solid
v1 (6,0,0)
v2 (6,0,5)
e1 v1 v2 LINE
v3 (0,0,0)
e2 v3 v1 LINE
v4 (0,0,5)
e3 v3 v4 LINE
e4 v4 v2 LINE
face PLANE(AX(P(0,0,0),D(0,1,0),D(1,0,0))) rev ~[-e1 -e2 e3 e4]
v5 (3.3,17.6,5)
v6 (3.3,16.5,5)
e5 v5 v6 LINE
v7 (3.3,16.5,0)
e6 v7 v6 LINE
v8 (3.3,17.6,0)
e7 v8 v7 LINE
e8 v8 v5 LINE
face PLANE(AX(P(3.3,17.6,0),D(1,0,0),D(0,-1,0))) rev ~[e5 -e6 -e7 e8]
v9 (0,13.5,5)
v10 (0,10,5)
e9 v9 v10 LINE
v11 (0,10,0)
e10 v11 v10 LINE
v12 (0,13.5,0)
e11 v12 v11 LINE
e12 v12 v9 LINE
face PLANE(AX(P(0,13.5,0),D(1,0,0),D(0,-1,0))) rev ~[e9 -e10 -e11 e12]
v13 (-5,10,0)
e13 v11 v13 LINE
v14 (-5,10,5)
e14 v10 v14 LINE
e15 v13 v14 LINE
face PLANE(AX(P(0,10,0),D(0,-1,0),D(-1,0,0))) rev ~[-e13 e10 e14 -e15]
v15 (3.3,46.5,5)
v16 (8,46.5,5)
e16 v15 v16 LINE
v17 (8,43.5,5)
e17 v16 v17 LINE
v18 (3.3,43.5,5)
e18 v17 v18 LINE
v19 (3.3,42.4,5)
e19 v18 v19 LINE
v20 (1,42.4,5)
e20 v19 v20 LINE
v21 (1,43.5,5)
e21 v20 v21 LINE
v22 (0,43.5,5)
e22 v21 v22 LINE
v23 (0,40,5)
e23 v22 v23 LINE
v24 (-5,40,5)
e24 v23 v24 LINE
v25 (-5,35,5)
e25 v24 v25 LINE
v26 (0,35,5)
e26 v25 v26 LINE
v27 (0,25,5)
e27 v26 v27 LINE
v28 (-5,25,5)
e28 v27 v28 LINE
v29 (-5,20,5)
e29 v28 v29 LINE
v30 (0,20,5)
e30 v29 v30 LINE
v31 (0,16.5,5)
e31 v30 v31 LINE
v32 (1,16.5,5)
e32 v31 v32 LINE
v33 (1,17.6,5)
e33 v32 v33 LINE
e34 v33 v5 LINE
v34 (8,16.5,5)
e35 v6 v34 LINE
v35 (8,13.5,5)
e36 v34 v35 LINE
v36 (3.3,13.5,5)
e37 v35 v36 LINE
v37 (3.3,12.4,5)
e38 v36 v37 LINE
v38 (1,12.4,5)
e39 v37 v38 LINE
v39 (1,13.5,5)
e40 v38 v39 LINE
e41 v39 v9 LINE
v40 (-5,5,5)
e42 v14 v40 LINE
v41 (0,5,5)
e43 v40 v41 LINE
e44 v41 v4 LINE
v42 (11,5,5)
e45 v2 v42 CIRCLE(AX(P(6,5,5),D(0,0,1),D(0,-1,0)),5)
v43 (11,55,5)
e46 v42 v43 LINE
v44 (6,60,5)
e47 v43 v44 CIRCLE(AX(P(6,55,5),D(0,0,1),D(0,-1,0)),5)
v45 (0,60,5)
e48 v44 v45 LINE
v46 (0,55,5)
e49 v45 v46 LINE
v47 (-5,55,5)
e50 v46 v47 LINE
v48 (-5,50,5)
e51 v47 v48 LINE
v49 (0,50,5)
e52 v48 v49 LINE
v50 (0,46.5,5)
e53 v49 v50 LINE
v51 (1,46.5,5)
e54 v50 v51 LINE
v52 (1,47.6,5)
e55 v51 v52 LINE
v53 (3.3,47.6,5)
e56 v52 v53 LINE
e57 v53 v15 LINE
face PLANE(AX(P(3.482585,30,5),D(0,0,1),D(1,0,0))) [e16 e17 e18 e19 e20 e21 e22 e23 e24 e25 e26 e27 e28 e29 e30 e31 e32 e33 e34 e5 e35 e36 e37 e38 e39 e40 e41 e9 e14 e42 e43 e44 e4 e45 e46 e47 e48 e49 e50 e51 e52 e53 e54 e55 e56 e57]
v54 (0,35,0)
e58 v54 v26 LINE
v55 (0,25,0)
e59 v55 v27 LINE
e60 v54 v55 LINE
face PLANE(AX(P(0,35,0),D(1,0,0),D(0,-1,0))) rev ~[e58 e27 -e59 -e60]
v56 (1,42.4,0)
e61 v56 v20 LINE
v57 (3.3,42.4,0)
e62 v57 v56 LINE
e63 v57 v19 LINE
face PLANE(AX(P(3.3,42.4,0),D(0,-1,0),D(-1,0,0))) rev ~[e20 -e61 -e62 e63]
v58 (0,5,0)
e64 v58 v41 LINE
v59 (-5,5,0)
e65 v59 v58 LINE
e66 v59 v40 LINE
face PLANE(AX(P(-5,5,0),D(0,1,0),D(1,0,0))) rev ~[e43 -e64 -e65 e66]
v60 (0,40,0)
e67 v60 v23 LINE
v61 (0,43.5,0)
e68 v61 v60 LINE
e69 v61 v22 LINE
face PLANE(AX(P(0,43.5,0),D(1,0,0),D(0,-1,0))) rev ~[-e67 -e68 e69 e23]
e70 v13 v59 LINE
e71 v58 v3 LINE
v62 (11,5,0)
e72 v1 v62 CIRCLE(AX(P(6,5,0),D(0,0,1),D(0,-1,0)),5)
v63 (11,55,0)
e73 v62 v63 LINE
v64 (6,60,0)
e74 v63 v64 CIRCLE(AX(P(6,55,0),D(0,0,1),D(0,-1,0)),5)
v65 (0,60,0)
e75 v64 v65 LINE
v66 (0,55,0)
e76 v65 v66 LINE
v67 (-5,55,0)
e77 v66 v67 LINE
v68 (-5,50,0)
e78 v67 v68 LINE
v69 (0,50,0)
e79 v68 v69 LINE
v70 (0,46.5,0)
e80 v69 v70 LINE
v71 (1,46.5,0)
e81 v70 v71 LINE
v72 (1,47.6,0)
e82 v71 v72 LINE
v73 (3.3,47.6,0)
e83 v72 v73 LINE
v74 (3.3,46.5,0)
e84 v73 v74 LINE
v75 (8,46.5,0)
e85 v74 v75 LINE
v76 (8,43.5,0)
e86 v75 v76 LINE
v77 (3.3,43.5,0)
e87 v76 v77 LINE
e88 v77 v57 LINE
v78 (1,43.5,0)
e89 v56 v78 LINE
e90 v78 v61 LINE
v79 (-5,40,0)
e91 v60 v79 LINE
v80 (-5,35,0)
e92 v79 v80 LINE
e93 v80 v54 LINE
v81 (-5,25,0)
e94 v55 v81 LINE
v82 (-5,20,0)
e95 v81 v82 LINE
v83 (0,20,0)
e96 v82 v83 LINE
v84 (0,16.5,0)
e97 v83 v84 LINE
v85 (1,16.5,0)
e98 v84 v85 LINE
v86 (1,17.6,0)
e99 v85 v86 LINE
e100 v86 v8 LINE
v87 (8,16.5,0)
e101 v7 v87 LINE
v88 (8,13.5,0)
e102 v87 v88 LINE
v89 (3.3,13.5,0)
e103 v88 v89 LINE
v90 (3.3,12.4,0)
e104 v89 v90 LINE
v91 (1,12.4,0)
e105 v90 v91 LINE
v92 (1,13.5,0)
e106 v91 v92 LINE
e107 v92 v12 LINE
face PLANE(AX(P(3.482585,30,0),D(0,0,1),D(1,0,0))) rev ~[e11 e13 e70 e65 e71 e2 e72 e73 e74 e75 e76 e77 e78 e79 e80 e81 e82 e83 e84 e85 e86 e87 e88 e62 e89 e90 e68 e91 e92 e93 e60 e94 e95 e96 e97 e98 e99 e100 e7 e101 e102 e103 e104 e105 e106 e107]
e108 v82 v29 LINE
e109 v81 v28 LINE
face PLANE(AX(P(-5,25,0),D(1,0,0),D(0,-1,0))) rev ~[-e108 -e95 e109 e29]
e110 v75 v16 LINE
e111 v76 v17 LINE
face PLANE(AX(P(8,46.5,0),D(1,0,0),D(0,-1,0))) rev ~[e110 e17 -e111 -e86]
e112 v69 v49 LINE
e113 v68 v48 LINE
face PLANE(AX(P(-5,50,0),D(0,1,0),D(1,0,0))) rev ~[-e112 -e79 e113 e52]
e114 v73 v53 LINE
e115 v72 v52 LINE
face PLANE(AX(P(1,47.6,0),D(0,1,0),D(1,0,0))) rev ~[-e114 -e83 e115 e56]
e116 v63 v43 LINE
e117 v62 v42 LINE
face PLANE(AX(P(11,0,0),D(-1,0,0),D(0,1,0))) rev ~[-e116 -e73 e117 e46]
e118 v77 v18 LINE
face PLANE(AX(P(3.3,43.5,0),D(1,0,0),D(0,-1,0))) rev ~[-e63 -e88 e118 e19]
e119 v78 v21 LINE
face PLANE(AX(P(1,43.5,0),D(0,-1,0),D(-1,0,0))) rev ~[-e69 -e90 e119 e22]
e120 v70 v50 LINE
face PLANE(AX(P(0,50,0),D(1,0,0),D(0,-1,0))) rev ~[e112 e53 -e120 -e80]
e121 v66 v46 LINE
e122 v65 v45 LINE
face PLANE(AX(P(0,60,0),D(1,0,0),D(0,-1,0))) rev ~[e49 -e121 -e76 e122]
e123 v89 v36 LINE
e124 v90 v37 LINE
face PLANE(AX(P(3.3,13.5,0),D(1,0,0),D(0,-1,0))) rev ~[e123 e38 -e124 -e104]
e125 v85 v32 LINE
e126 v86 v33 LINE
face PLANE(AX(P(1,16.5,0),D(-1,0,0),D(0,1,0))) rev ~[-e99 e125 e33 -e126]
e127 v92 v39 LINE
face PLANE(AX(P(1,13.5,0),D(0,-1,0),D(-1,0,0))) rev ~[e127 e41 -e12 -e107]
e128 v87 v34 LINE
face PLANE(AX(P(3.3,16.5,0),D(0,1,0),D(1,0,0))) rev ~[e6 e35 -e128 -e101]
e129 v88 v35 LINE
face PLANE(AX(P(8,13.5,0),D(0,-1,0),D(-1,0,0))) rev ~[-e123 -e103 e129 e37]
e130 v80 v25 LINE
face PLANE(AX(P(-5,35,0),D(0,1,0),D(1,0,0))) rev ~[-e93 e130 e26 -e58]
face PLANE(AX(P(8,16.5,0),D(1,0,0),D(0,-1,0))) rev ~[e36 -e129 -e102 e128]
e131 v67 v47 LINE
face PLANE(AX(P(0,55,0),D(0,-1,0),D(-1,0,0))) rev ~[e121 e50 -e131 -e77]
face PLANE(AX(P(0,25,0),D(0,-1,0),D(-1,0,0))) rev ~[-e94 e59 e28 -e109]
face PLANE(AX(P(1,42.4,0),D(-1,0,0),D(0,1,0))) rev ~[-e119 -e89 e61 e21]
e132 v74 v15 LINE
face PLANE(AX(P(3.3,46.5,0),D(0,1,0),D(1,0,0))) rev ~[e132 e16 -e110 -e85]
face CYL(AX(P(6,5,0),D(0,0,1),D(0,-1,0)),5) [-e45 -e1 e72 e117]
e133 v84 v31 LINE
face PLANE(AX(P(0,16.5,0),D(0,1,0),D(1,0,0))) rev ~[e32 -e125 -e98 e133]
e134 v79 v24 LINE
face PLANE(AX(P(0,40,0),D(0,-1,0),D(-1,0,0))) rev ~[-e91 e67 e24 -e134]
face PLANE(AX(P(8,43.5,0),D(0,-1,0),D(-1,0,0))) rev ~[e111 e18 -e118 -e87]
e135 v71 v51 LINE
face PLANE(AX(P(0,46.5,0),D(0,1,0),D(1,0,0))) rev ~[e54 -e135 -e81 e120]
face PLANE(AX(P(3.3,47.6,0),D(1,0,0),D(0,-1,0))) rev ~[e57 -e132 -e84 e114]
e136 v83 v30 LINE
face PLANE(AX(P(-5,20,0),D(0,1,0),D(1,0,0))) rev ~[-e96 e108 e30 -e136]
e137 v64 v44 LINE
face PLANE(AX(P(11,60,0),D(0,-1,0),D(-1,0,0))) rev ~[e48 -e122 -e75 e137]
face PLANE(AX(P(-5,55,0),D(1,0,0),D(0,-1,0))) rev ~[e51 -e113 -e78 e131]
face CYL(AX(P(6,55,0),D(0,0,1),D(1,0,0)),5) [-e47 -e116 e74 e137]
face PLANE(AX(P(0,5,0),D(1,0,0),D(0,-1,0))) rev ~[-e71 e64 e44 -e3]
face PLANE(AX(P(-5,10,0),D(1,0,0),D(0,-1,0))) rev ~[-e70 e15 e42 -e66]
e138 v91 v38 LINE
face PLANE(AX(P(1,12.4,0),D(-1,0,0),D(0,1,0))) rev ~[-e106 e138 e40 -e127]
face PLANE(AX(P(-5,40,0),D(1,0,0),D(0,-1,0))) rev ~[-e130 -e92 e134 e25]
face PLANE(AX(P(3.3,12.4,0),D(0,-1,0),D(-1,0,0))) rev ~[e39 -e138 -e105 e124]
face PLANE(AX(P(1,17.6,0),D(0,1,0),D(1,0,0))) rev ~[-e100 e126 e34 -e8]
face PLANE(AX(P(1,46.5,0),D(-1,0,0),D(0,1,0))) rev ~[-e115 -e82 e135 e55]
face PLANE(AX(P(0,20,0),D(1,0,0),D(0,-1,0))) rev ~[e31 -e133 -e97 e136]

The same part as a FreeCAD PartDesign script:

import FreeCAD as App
import Part
import Sketcher

V = App.Vector


def edges_at(feature, points):
    """Names of the edges that pass closest to the given points."""
    edges = feature.Shape.Edges
    near = lambda p: min(range(len(edges)), key=lambda i: edges[i].distToShape(Part.Vertex(*p))[0])
    return sorted({f"Edge{near(p) + 1}" for p in points})

doc = App.newDocument("Part")
body = doc.addObject("PartDesign::Body", "Body")

sketch1 = body.newObject("Sketcher::SketchObject", "Sketch")
sketch1.AttachmentSupport = (doc.getObject("XY_Plane"), [""])
sketch1.MapMode = "FlatFace"
sketch1.addGeometry([
    Part.LineSegment(V(0, 60, 0), V(0, 55, 0)),
    Part.LineSegment(V(0, 55, 0), V(-5, 55, 0)),
    Part.LineSegment(V(-5, 55, 0), V(-5, 50, 0)),
    Part.LineSegment(V(-5, 50, 0), V(0, 50, 0)),
    Part.LineSegment(V(0, 50, 0), V(0, 46.5, 0)),
    Part.LineSegment(V(0, 46.5, 0), V(1, 46.5, 0)),
    Part.LineSegment(V(1, 46.5, 0), V(1, 47.6, 0)),
    Part.LineSegment(V(1, 47.6, 0), V(3.3, 47.6, 0)),
    Part.LineSegment(V(3.3, 47.6, 0), V(3.3, 46.5, 0)),
    Part.LineSegment(V(3.3, 46.5, 0), V(8, 46.5, 0)),
    Part.LineSegment(V(8, 46.5, 0), V(8, 43.5, 0)),
    Part.LineSegment(V(8, 43.5, 0), V(3.3, 43.5, 0)),
    Part.LineSegment(V(3.3, 43.5, 0), V(3.3, 42.4, 0)),
    Part.LineSegment(V(3.3, 42.4, 0), V(1, 42.4, 0)),
    Part.LineSegment(V(1, 42.4, 0), V(1, 43.5, 0)),
    Part.LineSegment(V(1, 43.5, 0), V(0, 43.5, 0)),
    Part.LineSegment(V(0, 43.5, 0), V(0, 40, 0)),
    Part.LineSegment(V(0, 40, 0), V(-5, 40, 0)),
    Part.LineSegment(V(-5, 40, 0), V(-5, 35, 0)),
    Part.LineSegment(V(-5, 35, 0), V(0, 35, 0)),
    Part.LineSegment(V(0, 35, 0), V(0, 25, 0)),
    Part.LineSegment(V(0, 25, 0), V(-5, 25, 0)),
    Part.LineSegment(V(-5, 25, 0), V(-5, 20, 0)),
    Part.LineSegment(V(-5, 20, 0), V(0, 20, 0)),
    Part.LineSegment(V(0, 20, 0), V(0, 16.5, 0)),
    Part.LineSegment(V(0, 16.5, 0), V(1, 16.5, 0)),
    Part.LineSegment(V(1, 16.5, 0), V(1, 17.6, 0)),
    Part.LineSegment(V(1, 17.6, 0), V(3.3, 17.6, 0)),
    Part.LineSegment(V(3.3, 17.6, 0), V(3.3, 16.5, 0)),
    Part.LineSegment(V(3.3, 16.5, 0), V(8, 16.5, 0)),
    Part.LineSegment(V(8, 16.5, 0), V(8, 13.5, 0)),
    Part.LineSegment(V(8, 13.5, 0), V(3.3, 13.5, 0)),
    Part.LineSegment(V(3.3, 13.5, 0), V(3.3, 12.4, 0)),
    Part.LineSegment(V(3.3, 12.4, 0), V(1, 12.4, 0)),
    Part.LineSegment(V(1, 12.4, 0), V(1, 13.5, 0)),
    Part.LineSegment(V(1, 13.5, 0), V(0, 13.5, 0)),
    Part.LineSegment(V(0, 13.5, 0), V(0, 10, 0)),
    Part.LineSegment(V(0, 10, 0), V(-5, 10, 0)),
    Part.LineSegment(V(-5, 10, 0), V(-5, 5, 0)),
    Part.LineSegment(V(-5, 5, 0), V(0, 5, 0)),
    Part.LineSegment(V(0, 5, 0), V(0, 0, 0)),
    Part.LineSegment(V(0, 0, 0), V(11, 0, 0)),
    Part.LineSegment(V(11, 0, 0), V(11, 60, 0)),
    Part.LineSegment(V(11, 60, 0), V(0, 60, 0)),
], False)
sketch1.addConstraint([
    Sketcher.Constraint("Coincident", 0, 2, 1, 1),
    Sketcher.Constraint("Coincident", 1, 2, 2, 1),
    Sketcher.Constraint("Coincident", 2, 2, 3, 1),
    Sketcher.Constraint("Coincident", 3, 2, 4, 1),
    Sketcher.Constraint("Coincident", 4, 2, 5, 1),
    Sketcher.Constraint("Coincident", 5, 2, 6, 1),
    Sketcher.Constraint("Coincident", 6, 2, 7, 1),
    Sketcher.Constraint("Coincident", 7, 2, 8, 1),
    Sketcher.Constraint("Coincident", 8, 2, 9, 1),
    Sketcher.Constraint("Coincident", 9, 2, 10, 1),
    Sketcher.Constraint("Coincident", 10, 2, 11, 1),
    Sketcher.Constraint("Coincident", 11, 2, 12, 1),
    Sketcher.Constraint("Coincident", 12, 2, 13, 1),
    Sketcher.Constraint("Coincident", 13, 2, 14, 1),
    Sketcher.Constraint("Coincident", 14, 2, 15, 1),
    Sketcher.Constraint("Coincident", 15, 2, 16, 1),
    Sketcher.Constraint("Coincident", 16, 2, 17, 1),
    Sketcher.Constraint("Coincident", 17, 2, 18, 1),
    Sketcher.Constraint("Coincident", 18, 2, 19, 1),
    Sketcher.Constraint("Coincident", 19, 2, 20, 1),
    Sketcher.Constraint("Coincident", 20, 2, 21, 1),
    Sketcher.Constraint("Coincident", 21, 2, 22, 1),
    Sketcher.Constraint("Coincident", 22, 2, 23, 1),
    Sketcher.Constraint("Coincident", 23, 2, 24, 1),
    Sketcher.Constraint("Coincident", 24, 2, 25, 1),
    Sketcher.Constraint("Coincident", 25, 2, 26, 1),
    Sketcher.Constraint("Coincident", 26, 2, 27, 1),
    Sketcher.Constraint("Coincident", 27, 2, 28, 1),
    Sketcher.Constraint("Coincident", 28, 2, 29, 1),
    Sketcher.Constraint("Coincident", 29, 2, 30, 1),
    Sketcher.Constraint("Coincident", 30, 2, 31, 1),
    Sketcher.Constraint("Coincident", 31, 2, 32, 1),
    Sketcher.Constraint("Coincident", 32, 2, 33, 1),
    Sketcher.Constraint("Coincident", 33, 2, 34, 1),
    Sketcher.Constraint("Coincident", 34, 2, 35, 1),
    Sketcher.Constraint("Coincident", 35, 2, 36, 1),
    Sketcher.Constraint("Coincident", 36, 2, 37, 1),
    Sketcher.Constraint("Coincident", 37, 2, 38, 1),
    Sketcher.Constraint("Coincident", 38, 2, 39, 1),
    Sketcher.Constraint("Coincident", 39, 2, 40, 1),
    Sketcher.Constraint("Coincident", 40, 2, 41, 1),
    Sketcher.Constraint("Coincident", 41, 2, 42, 1),
    Sketcher.Constraint("Coincident", 42, 2, 43, 1),
    Sketcher.Constraint("Coincident", 43, 2, 0, 1),
    Sketcher.Constraint("Vertical", 0),
    Sketcher.Constraint("Horizontal", 1),
    Sketcher.Constraint("Vertical", 2),
    Sketcher.Constraint("Horizontal", 3),
    Sketcher.Constraint("Vertical", 4),
    Sketcher.Constraint("Horizontal", 5),
    Sketcher.Constraint("Vertical", 6),
    Sketcher.Constraint("Horizontal", 7),
    Sketcher.Constraint("Vertical", 8),
    Sketcher.Constraint("Horizontal", 9),
    Sketcher.Constraint("Vertical", 10),
    Sketcher.Constraint("Horizontal", 11),
    Sketcher.Constraint("Vertical", 12),
    Sketcher.Constraint("Horizontal", 13),
    Sketcher.Constraint("Vertical", 14),
    Sketcher.Constraint("Horizontal", 15),
    Sketcher.Constraint("Vertical", 16),
    Sketcher.Constraint("Horizontal", 17),
    Sketcher.Constraint("Vertical", 18),
    Sketcher.Constraint("Horizontal", 19),
    Sketcher.Constraint("Vertical", 20),
    Sketcher.Constraint("Horizontal", 21),
    Sketcher.Constraint("Vertical", 22),
    Sketcher.Constraint("Horizontal", 23),
    Sketcher.Constraint("Vertical", 24),
    Sketcher.Constraint("Horizontal", 25),
    Sketcher.Constraint("Vertical", 26),
    Sketcher.Constraint("Horizontal", 27),
    Sketcher.Constraint("Vertical", 28),
    Sketcher.Constraint("Horizontal", 29),
    Sketcher.Constraint("Vertical", 30),
    Sketcher.Constraint("Horizontal", 31),
    Sketcher.Constraint("Vertical", 32),
    Sketcher.Constraint("Horizontal", 33),
    Sketcher.Constraint("Vertical", 34),
    Sketcher.Constraint("Horizontal", 35),
    Sketcher.Constraint("Vertical", 36),
    Sketcher.Constraint("Horizontal", 37),
    Sketcher.Constraint("Vertical", 38),
    Sketcher.Constraint("Horizontal", 39),
    Sketcher.Constraint("Vertical", 40),
    Sketcher.Constraint("Horizontal", 41),
    Sketcher.Constraint("Vertical", 42),
    Sketcher.Constraint("Horizontal", 43),
    Sketcher.Constraint("Coincident", 40, 2, -1, 1),
    Sketcher.Constraint("PointOnObject", 0, 2, -2),
    Sketcher.Constraint("PointOnObject", 3, 2, -2),
    Sketcher.Constraint("PointOnObject", 15, 2, -2),
    Sketcher.Constraint("PointOnObject", 19, 2, -2),
    Sketcher.Constraint("PointOnObject", 23, 2, -2),
    Sketcher.Constraint("PointOnObject", 35, 2, -2),
    Sketcher.Constraint("Horizontal", 5, 2, 8, 2),
    Sketcher.Constraint("Horizontal", 11, 2, 14, 2),
    Sketcher.Constraint("Horizontal", 25, 2, 28, 2),
    Sketcher.Constraint("Horizontal", 31, 2, 34, 2),
    Sketcher.Constraint("Vertical", 8, 2, 11, 2),
    Sketcher.Constraint("Vertical", 6, 2, 13, 2),
    Sketcher.Constraint("Vertical", 2, 2, 17, 2),
    Sketcher.Constraint("Vertical", 18, 2, 21, 2),
    Sketcher.Constraint("Vertical", 14, 2, 25, 2),
    Sketcher.Constraint("Vertical", 12, 2, 27, 2),
    Sketcher.Constraint("Vertical", 10, 2, 29, 2),
    Sketcher.Constraint("Vertical", 28, 2, 31, 2),
    Sketcher.Constraint("Vertical", 26, 2, 33, 2),
    Sketcher.Constraint("Vertical", 22, 2, 37, 2),
    Sketcher.Constraint("Equal", 39, 0),
    Sketcher.Constraint("Equal", 0, 2),
    Sketcher.Constraint("Equal", 8, 12),
    Sketcher.Constraint("Equal", 4, 16),
    Sketcher.Constraint("Equal", 2, 18),
    Sketcher.Constraint("Equal", 18, 22),
    Sketcher.Constraint("Equal", 16, 24),
    Sketcher.Constraint("Equal", 14, 26),
    Sketcher.Constraint("Equal", 10, 30),
    Sketcher.Constraint("Equal", 28, 32),
    Sketcher.Constraint("Equal", 24, 36),
    Sketcher.Constraint("Equal", 22, 38),
    Sketcher.Constraint("Equal", 38, 40),
    Sketcher.Constraint("DistanceX", 1, 2, 1, 1, 5.0),
    Sketcher.Constraint("DistanceX", 5, 1, 5, 2, 1.0),
    Sketcher.Constraint("DistanceX", 41, 1, 41, 2, 11.0),
    Sketcher.Constraint("DistanceY", 10, 2, 10, 1, 3.0),
    Sketcher.Constraint("DistanceY", 20, 2, 20, 1, 10.0),
    Sketcher.Constraint("DistanceY", 42, 1, 42, 2, 60.0),
    Sketcher.Constraint("DistanceX", 7, 1, 7, 2, 2.3),
    Sketcher.Constraint("DistanceX", 9, 1, 9, 2, 4.7),
    Sketcher.Constraint("DistanceY", 6, 1, 6, 2, 1.1),
])
pad1 = body.newObject("PartDesign::Pad", "Pad")
pad1.Profile = sketch1
pad1.Length = 5
doc.recompute()

fillet = body.newObject("PartDesign::Fillet", "Fillet")
fillet.Base = (pad1, edges_at(pad1, [(11, 60, 2.5), (11, 0, 2.5)]))
fillet.Radius = 5

doc.recompute()
